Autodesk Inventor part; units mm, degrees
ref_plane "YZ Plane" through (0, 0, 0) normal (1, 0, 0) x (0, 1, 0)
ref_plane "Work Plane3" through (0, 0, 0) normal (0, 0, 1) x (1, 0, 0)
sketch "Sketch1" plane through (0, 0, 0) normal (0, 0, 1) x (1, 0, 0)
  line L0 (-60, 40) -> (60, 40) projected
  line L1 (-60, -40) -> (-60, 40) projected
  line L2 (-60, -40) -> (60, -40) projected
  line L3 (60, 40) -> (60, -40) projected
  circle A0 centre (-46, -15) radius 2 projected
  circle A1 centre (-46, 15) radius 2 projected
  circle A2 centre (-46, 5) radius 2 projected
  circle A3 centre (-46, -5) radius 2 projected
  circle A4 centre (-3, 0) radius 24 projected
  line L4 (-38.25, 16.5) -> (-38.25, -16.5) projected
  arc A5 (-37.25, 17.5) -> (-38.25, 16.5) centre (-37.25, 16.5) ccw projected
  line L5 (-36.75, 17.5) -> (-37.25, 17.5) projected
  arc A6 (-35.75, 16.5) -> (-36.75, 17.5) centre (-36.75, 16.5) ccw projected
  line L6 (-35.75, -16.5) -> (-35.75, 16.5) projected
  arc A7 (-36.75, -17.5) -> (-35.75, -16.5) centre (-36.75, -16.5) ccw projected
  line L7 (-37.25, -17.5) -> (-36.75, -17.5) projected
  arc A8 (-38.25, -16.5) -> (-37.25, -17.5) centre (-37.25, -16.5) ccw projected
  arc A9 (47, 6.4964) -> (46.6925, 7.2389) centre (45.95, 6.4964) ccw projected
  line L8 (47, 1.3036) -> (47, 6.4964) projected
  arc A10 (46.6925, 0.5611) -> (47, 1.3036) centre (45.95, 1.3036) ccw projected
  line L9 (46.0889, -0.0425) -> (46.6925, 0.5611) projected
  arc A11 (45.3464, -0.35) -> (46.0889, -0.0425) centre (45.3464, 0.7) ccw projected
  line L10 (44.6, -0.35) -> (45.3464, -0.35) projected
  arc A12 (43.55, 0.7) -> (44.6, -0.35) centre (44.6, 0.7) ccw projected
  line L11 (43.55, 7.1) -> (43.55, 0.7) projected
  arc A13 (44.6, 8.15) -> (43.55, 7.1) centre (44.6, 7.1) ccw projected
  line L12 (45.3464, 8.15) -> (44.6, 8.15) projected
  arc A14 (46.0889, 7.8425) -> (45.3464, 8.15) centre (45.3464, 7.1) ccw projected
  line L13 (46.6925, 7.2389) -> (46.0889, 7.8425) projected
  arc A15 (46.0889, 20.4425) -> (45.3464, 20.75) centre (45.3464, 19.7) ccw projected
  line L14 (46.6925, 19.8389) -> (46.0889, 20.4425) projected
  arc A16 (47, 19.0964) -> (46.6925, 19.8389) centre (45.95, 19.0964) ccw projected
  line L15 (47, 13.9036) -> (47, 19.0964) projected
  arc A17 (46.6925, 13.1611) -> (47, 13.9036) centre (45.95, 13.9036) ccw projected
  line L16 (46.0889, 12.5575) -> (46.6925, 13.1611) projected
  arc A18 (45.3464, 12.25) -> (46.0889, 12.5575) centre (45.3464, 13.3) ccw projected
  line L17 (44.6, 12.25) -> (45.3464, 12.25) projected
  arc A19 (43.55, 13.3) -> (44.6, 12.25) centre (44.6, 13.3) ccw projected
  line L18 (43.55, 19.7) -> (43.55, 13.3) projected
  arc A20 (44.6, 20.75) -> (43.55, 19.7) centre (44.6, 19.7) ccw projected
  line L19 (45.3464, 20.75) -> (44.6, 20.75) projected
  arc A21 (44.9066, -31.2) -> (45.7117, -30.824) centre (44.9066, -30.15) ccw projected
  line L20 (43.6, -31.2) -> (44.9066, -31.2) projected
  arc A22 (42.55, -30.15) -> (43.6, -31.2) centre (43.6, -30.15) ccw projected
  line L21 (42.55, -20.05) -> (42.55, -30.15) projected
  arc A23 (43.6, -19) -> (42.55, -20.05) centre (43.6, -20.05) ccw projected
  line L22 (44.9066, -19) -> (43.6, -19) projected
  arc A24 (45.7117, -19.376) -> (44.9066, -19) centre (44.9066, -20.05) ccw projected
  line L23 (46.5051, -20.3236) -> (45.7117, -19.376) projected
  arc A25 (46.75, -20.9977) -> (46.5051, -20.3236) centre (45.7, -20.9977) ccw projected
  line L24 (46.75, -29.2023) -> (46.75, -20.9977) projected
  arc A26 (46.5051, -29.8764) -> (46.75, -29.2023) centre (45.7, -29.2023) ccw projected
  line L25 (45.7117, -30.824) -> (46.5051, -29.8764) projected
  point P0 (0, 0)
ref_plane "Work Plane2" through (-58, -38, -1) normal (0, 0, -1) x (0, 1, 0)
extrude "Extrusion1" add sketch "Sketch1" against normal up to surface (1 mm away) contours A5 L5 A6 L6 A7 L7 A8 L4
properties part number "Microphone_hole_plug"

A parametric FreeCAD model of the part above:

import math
import FreeCAD as App
import Part
import Sketcher

doc = App.newDocument("Part")
params = doc.addObject("Spreadsheet::Sheet", "Params")
for row, (alias, value) in enumerate([
    ("sketch1_radius", "1 mm"),
    ("sketch1_height", "33 mm"),
    ("sketch1_width", "0.5 mm"),
    ("pad1_length", "1 mm"),
], start=1):
    params.set(f"A{row}", alias)
    params.set(f"B{row}", "=" + value)
    params.setAlias(f"B{row}", alias)

body = doc.addObject("PartDesign::Body", "Body")

sketch1 = body.newObject("Sketcher::SketchObject", "Sketch")
sketch1.AttachmentSupport = (doc.getObject("XY_Plane"), [""])
sketch1.MapMode = "FlatFace"
sketch1.addGeometry([
    Part.ArcOfCircle(Part.Circle(App.Vector(-37.2, 16.5, 0), App.Vector(0, 0, 1), 1), math.radians(90), math.radians(180)),
    Part.LineSegment(App.Vector(-38.2, 16.5, 0), App.Vector(-38.2, -16.5, 0)),
    Part.ArcOfCircle(Part.Circle(App.Vector(-37.2, -16.5, 0), App.Vector(0, 0, 1), 1), math.radians(180), math.radians(270)),
    Part.LineSegment(App.Vector(-37.2, -17.5, 0), App.Vector(-36.8, -17.5, 0)),
    Part.ArcOfCircle(Part.Circle(App.Vector(-36.8, -16.5, 0), App.Vector(0, 0, 1), 1), math.radians(-90), math.radians(0)),
    Part.LineSegment(App.Vector(-35.8, -16.5, 0), App.Vector(-35.8, 16.5, 0)),
    Part.ArcOfCircle(Part.Circle(App.Vector(-36.8, 16.5, 0), App.Vector(0, 0, 1), 1), math.radians(0), math.radians(90)),
    Part.LineSegment(App.Vector(-36.8, 17.5, 0), App.Vector(-37.2, 17.5, 0)),
], False)
sketch1.addConstraint([
    Sketcher.Constraint("Tangent", 0, 2, 1, 1),
    Sketcher.Constraint("Tangent", 1, 2, 2, 1),
    Sketcher.Constraint("Tangent", 2, 2, 3, 1),
    Sketcher.Constraint("Tangent", 3, 2, 4, 1),
    Sketcher.Constraint("Tangent", 4, 2, 5, 1),
    Sketcher.Constraint("Tangent", 5, 2, 6, 1),
    Sketcher.Constraint("Tangent", 6, 2, 7, 1),
    Sketcher.Constraint("Tangent", 7, 2, 0, 1),
    Sketcher.Constraint("Vertical", 1),
    Sketcher.Constraint("Horizontal", 3),
    Sketcher.Constraint("Vertical", 5),
    Sketcher.Constraint("Horizontal", 7),
    Sketcher.Constraint("Equal", 0, 2),
    Sketcher.Constraint("Equal", 2, 4),
    Sketcher.Constraint("Equal", 4, 6),
    Sketcher.Constraint("Radius", 0, 1.0),
    Sketcher.Constraint("DistanceY", 1, 2, 1, 1, 33.0),
    Sketcher.Constraint("DistanceX", 3, 1, 3, 2, 0.5),
    Sketcher.Constraint("DistanceY", -1, 1, 0, 3, 16.5),
    Sketcher.Constraint("DistanceX", 0, 3, -1, 1, 37.25),
])
sketch1.setExpression("Constraints[15]", "Params.sketch1_radius")
sketch1.setExpression("Constraints[16]", "Params.sketch1_height")
sketch1.setExpression("Constraints[17]", "Params.sketch1_width")
pad1 = body.newObject("PartDesign::Pad", "Pad")
pad1.Profile = sketch1
pad1.setExpression("Length", "Params.pad1_length")
pad1.Reversed = True

doc.recompute()
